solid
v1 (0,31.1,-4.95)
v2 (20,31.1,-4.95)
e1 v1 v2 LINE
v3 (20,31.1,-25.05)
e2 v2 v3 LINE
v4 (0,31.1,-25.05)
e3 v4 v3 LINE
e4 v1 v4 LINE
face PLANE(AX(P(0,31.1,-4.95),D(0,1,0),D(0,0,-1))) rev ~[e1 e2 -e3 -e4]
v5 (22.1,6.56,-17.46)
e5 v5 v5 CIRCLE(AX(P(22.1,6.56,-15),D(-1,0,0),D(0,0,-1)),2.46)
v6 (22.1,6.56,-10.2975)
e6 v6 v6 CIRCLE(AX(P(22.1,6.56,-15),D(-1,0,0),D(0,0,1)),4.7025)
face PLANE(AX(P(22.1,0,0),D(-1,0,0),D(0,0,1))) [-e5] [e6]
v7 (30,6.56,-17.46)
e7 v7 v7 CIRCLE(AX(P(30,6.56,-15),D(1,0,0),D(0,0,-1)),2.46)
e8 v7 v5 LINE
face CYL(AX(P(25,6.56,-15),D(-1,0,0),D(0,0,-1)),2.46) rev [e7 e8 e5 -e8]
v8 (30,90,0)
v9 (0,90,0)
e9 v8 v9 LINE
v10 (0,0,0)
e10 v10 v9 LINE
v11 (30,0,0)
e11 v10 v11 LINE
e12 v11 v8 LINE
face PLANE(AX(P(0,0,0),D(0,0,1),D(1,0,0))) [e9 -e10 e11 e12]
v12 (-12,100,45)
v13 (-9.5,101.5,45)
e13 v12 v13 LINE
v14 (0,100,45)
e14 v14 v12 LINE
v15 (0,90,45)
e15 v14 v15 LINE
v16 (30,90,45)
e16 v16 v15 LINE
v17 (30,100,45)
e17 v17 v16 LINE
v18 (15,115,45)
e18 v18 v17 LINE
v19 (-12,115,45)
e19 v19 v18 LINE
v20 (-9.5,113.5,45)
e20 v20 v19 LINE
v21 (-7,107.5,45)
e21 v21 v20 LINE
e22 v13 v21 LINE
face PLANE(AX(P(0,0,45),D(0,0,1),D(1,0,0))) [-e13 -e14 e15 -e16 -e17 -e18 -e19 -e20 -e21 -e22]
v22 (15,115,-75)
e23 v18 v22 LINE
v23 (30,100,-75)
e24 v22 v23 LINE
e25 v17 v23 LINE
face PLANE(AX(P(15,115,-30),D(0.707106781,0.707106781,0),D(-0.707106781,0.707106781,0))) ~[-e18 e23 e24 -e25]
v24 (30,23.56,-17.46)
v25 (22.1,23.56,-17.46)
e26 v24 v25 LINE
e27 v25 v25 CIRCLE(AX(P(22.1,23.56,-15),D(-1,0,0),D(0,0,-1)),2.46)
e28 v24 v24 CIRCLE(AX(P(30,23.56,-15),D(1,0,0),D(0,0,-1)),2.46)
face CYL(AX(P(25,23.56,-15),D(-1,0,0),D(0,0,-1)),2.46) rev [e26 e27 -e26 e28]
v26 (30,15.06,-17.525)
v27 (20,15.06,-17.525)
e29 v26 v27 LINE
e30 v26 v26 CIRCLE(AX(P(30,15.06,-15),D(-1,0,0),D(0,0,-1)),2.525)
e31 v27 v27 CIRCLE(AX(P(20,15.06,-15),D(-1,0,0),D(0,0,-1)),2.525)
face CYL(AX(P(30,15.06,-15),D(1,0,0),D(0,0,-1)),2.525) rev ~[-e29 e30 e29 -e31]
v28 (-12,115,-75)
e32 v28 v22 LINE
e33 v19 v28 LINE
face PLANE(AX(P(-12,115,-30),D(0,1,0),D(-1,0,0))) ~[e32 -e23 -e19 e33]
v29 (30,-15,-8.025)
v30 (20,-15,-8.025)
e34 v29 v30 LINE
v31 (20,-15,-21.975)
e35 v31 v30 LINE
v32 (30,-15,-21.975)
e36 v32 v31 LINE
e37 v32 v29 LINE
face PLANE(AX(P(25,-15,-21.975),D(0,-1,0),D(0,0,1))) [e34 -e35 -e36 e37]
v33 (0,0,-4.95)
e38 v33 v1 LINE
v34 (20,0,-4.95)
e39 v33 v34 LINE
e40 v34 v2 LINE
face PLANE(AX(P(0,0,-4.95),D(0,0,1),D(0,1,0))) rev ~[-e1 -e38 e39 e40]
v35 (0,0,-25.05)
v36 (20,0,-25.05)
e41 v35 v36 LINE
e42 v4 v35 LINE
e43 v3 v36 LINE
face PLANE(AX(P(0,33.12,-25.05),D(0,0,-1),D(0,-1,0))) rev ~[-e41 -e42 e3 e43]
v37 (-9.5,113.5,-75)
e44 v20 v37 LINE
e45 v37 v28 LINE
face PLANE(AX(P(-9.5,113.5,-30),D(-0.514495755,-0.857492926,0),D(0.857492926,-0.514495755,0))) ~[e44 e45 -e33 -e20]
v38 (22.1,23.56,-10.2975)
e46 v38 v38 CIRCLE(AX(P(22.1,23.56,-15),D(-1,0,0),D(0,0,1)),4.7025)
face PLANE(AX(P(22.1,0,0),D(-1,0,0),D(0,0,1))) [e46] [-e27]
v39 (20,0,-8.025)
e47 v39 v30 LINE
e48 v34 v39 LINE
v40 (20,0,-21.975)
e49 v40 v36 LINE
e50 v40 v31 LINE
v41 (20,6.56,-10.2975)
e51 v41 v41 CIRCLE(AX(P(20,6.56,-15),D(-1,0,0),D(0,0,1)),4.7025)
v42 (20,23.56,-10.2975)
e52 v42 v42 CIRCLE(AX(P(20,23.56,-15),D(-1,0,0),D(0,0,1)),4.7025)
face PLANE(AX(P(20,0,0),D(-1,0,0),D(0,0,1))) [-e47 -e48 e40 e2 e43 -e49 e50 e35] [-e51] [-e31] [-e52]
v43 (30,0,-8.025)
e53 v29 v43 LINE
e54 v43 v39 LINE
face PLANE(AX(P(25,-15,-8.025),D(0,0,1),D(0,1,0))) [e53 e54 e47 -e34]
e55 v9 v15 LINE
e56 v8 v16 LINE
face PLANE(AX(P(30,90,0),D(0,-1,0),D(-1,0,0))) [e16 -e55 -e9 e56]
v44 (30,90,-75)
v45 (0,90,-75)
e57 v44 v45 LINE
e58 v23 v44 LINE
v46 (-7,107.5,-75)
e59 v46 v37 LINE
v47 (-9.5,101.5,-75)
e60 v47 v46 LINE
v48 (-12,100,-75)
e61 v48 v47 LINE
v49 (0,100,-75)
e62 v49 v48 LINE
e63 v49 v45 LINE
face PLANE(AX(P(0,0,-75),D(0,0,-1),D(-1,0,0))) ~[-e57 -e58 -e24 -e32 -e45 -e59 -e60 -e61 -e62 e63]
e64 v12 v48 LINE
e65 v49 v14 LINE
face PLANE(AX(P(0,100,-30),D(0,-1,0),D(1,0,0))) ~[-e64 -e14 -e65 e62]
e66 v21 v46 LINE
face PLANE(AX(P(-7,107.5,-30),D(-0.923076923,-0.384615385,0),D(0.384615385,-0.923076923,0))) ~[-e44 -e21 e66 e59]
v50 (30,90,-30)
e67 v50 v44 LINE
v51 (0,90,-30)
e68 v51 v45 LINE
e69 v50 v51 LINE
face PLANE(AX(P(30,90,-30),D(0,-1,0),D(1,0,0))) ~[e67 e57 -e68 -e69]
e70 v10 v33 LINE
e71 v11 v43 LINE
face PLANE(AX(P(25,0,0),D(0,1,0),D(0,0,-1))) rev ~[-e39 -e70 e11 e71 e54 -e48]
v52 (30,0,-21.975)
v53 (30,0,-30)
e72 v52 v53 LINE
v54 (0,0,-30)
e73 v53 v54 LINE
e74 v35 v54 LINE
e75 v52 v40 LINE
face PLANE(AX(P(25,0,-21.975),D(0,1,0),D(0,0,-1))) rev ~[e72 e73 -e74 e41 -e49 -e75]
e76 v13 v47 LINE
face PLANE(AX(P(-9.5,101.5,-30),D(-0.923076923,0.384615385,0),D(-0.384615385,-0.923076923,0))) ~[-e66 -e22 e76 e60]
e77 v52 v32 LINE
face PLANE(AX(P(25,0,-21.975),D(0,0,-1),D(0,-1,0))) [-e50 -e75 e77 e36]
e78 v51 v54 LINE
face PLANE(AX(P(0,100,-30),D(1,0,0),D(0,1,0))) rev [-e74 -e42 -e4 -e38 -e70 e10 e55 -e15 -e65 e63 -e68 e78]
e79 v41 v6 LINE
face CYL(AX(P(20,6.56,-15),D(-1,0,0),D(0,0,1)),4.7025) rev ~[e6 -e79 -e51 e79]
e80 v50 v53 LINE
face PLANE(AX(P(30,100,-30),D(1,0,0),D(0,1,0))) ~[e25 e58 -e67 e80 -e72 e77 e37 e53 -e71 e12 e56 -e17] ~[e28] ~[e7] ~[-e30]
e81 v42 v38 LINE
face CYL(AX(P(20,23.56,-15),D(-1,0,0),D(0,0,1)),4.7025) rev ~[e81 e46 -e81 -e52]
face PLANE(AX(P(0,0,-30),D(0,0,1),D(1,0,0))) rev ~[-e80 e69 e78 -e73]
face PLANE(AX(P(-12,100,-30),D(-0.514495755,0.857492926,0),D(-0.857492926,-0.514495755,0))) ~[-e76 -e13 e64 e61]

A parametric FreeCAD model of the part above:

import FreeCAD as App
import Part
import Sketcher

V = App.Vector
Q = App.Units.Quantity


def add_polygon(sketch, points):
    """Adds a closed chain of lines whose ends are joined by coincident constraints."""
    first, n = sketch.GeometryCount, len(points)
    for a, b in zip(points, points[1:] + points[:1]):
        sketch.addGeometry(Part.LineSegment(App.Vector(*a, 0), App.Vector(*b, 0)), False)
    for i in range(n):
        sketch.addConstraint(Sketcher.Constraint("Coincident", first + i, 2, first + (i + 1) % n, 1))

doc = App.newDocument("Part")
body = doc.addObject("PartDesign::Body", "Body")

# Sketch on XY plane
sketch1 = body.newObject("Sketcher::SketchObject", "Sketch")
sketch1.AttachmentSupport = (doc.getObject("XY_Plane"), [""])
sketch1.MapMode = "FlatFace"
add_polygon(sketch1, [(0, 40), (0, 0), (25, 0), (25, 40)])  # lines 0-3
sketch1.addConstraint(Sketcher.Constraint("Vertical", 0))
sketch1.addConstraint(Sketcher.Constraint("Horizontal", 1))
sketch1.addConstraint(Sketcher.Constraint("Vertical", 2))
sketch1.addConstraint(Sketcher.Constraint("Horizontal", 3))
sketch1.addConstraint(Sketcher.Constraint("Coincident", 0, 2, -1, 1))
sketch1.addConstraint(Sketcher.Constraint("DistanceX", 1, 1, 1, 2, 25.0))
sketch1.addConstraint(Sketcher.Constraint("DistanceY", 0, 2, 0, 1, 40.0))
pad1 = body.newObject("PartDesign::Pad", "Pad")
pad1.Profile = sketch1
pad1.Length = 30
pad1.Reversed = True

# Sketch on YZ plane
sketch2 = body.newObject("Sketcher::SketchObject", "Sketch001")
sketch2.AttachmentSupport = (doc.getObject("YZ_Plane"), [""])
sketch2.MapMode = "FlatFace"
sketch2.AttachmentOffset = App.Placement(V(0, 0, 25), App.Rotation())
sketch2.addGeometry(Part.Circle(V(6.6, -15, 0), V(0, 0, 1), 2.5), False)
sketch2.addConstraint(Sketcher.Constraint("Diameter", 0, 4.92))
sketch2.addConstraint(Sketcher.Constraint("DistanceY", 0, 3, -1, 1, 15.0))
sketch2.addConstraint(Sketcher.Constraint("DistanceX", -1, 1, 0, 3, 6.56))
pocket1 = body.newObject("PartDesign::Pocket", "Pocket")
pocket1.Profile = sketch2
pocket1.Length = 30

# Sketch on YZ plane
sketch3 = body.newObject("Sketcher::SketchObject", "Sketch002")
sketch3.AttachmentSupport = (doc.getObject("YZ_Plane"), [""])
sketch3.MapMode = "FlatFace"
add_polygon(sketch3, [(0, -25), (0, -5), (33, -5), (33, -25)])  # lines 0-3
sketch3.addConstraint(Sketcher.Constraint("Vertical", 0))
sketch3.addConstraint(Sketcher.Constraint("Horizontal", 1))
sketch3.addConstraint(Sketcher.Constraint("Vertical", 2))
sketch3.addConstraint(Sketcher.Constraint("Horizontal", 3))
sketch3.addConstraint(Sketcher.Constraint("PointOnObject", 0, 2, -2))
sketch3.addConstraint(Sketcher.Constraint("DistanceY", 0, 1, 0, 2, 20.1))
sketch3.addConstraint(Sketcher.Constraint("DistanceX", 1, 1, 1, 2, 33.12))
sketch3.addConstraint(Sketcher.Constraint("DistanceY", 0, 2, -1, 1, 4.95))
pocket2 = body.newObject("PartDesign::Pocket", "Pocket001")
pocket2.Profile = sketch3
pocket2.Length = 20
pocket2.Reversed = True

# Sketch on XZ plane
sketch4 = body.newObject("Sketcher::SketchObject", "Sketch003")
sketch4.AttachmentSupport = (doc.getObject("XZ_Plane"), [""])
sketch4.MapMode = "FlatFace"
add_polygon(sketch4, [(25, -8), (20, -8), (20, -22), (25, -22)])  # lines 0-3
sketch4.addConstraint(Sketcher.Constraint("Horizontal", 0))
sketch4.addConstraint(Sketcher.Constraint("Vertical", 1))
sketch4.addConstraint(Sketcher.Constraint("Horizontal", 2))
sketch4.addConstraint(Sketcher.Constraint("Vertical", 3))
sketch4.addConstraint(Sketcher.Constraint("DistanceY", 1, 2, 1, 1, 13.95))
sketch4.addConstraint(Sketcher.Constraint("DistanceX", 0, 2, 0, 1, 5.0))
sketch4.addConstraint(Sketcher.Constraint("DistanceX", -1, 1, 0, 2, 20.0))
sketch4.addConstraint(Sketcher.Constraint("DistanceY", 0, 2, -1, 1, 8.025))
pad2 = body.newObject("PartDesign::Pad", "Pad001")
pad2.Profile = sketch4
pad2.Length = 15

# Sketch on YZ plane
sketch5 = body.newObject("Sketcher::SketchObject", "Sketch004")
sketch5.AttachmentSupport = (doc.getObject("YZ_Plane"), [""])
sketch5.MapMode = "FlatFace"
sketch5.AttachmentOffset = App.Placement(V(0, 0, 20), App.Rotation())
sketch5.addGeometry(Part.Circle(V(6.6, -15, 0), V(0, 0, 1), 4.7), False)
sketch5.addGeometry(Part.Circle(V(6.6, -15, 0), V(0, 0, 1), 2.5), False)
sketch5.addConstraint(Sketcher.Constraint("Coincident", 1, 3, 0, 3))
sketch5.addConstraint(Sketcher.Constraint("Diameter", 0, 9.405))
sketch5.addConstraint(Sketcher.Constraint("Diameter", 1, 4.92))
sketch5.addConstraint(Sketcher.Constraint("DistanceY", 0, 3, -1, 1, 15.0))
sketch5.addConstraint(Sketcher.Constraint("DistanceX", -1, 1, 0, 3, 6.56))
pocket3 = body.newObject("PartDesign::Pocket", "Pocket002")
pocket3.Profile = sketch5
pocket3.Length = 2.1
pocket3.Reversed = True

# Sketch on YZ plane
sketch6 = body.newObject("Sketcher::SketchObject", "Sketch005")
sketch6.AttachmentSupport = (doc.getObject("YZ_Plane"), [""])
sketch6.MapMode = "FlatFace"
sketch6.AttachmentOffset = App.Placement(V(0, 0, 25), App.Rotation())
sketch6.addGeometry(Part.Circle(V(23.6, -15, 0), V(0, 0, 1), 2.5), False)
sketch6.addConstraint(Sketcher.Constraint("Diameter", 0, 4.92))
sketch6.addConstraint(Sketcher.Constraint("DistanceY", 0, 3, -1, 1, 15.0))
sketch6.addConstraint(Sketcher.Constraint("DistanceX", -1, 1, 0, 3, 23.56))
pocket4 = body.newObject("PartDesign::Pocket", "Pocket003")
pocket4.Profile = sketch6
pocket4.Length = 10

# Sketch on YZ plane
sketch7 = body.newObject("Sketcher::SketchObject", "Sketch006")
sketch7.AttachmentSupport = (doc.getObject("YZ_Plane"), [""])
sketch7.MapMode = "FlatFace"
sketch7.AttachmentOffset = App.Placement(V(0, 0, 20), App.Rotation())
sketch7.addGeometry(Part.Circle(V(23.6, -15, 0), V(0, 0, 1), 4.7), False)
sketch7.addGeometry(Part.Circle(V(23.6, -15, 0), V(0, 0, 1), 2.5), False)
sketch7.addConstraint(Sketcher.Constraint("Coincident", 1, 3, 0, 3))
sketch7.addConstraint(Sketcher.Constraint("Diameter", 0, 9.405))
sketch7.addConstraint(Sketcher.Constraint("Diameter", 1, 4.92))
sketch7.addConstraint(Sketcher.Constraint("DistanceY", 0, 3, -1, 1, 15.0))
sketch7.addConstraint(Sketcher.Constraint("DistanceX", -1, 1, 0, 3, 23.56))
pocket5 = body.newObject("PartDesign::Pocket", "Pocket004")
pocket5.Profile = sketch7
pocket5.Length = 2.1
pocket5.Reversed = True

# Sketch on YZ plane
sketch8 = body.newObject("Sketcher::SketchObject", "Sketch007")
sketch8.AttachmentSupport = (doc.getObject("YZ_Plane"), [""])
sketch8.MapMode = "FlatFace"
sketch8.AttachmentOffset = App.Placement(V(0, 0, 25), App.Rotation())
add_polygon(sketch8, [(0, -30), (40, -30), (40, 0), (0, 0), (0, -8), (-15, -8), (-15, -22), (0, -22)])  # lines 0-7
sketch8.addGeometry(Part.Circle(V(6.6, -15, 0), V(0, 0, 1), 2.5), False)  # 8
sketch8.addGeometry(Part.Circle(V(23.6, -15, 0), V(0, 0, 1), 2.5), False)  # 9
sketch8.addConstraint(Sketcher.Constraint("Horizontal", 0))
sketch8.addConstraint(Sketcher.Constraint("Vertical", 1))
sketch8.addConstraint(Sketcher.Constraint("Horizontal", 2))
sketch8.addConstraint(Sketcher.Constraint("Vertical", 3))
sketch8.addConstraint(Sketcher.Constraint("Horizontal", 4))
sketch8.addConstraint(Sketcher.Constraint("Vertical", 5))
sketch8.addConstraint(Sketcher.Constraint("Horizontal", 6))
sketch8.addConstraint(Sketcher.Constraint("Vertical", 7))
sketch8.addConstraint(Sketcher.Constraint("Coincident", 2, 2, -1, 1))
sketch8.addConstraint(Sketcher.Constraint("Equal", 8, 9))
sketch8.addConstraint(Sketcher.Constraint("PointOnObject", 6, 2, -2))
sketch8.addConstraint(Sketcher.Constraint("Horizontal", 8, 3, 9, 3))
sketch8.addConstraint(Sketcher.Constraint("Equal", 3, 7))
sketch8.addConstraint(Sketcher.Constraint("Diameter", 8, 4.92))
sketch8.addConstraint(Sketcher.Constraint("DistanceX", 0, 1, 0, 2, 40.0))
sketch8.addConstraint(Sketcher.Constraint("DistanceX", 4, 2, 4, 1, 15.0))
sketch8.addConstraint(Sketcher.Constraint("DistanceY", 1, 1, 1, 2, 30.0))
sketch8.addConstraint(Sketcher.Constraint("DistanceY", 8, 3, -1, 1, 15.0))
sketch8.addConstraint(Sketcher.Constraint("DistanceX", 8, 3, 9, 3, 17.0))
sketch8.addConstraint(Sketcher.Constraint("DistanceY", 5, 2, 5, 1, 13.95))
sketch8.addConstraint(Sketcher.Constraint("DistanceX", -1, 1, 8, 3, 6.56))
pad3 = body.newObject("PartDesign::Pad", "Pad002")
pad3.Profile = sketch8
pad3.Length = 5

# Sketch on XZ plane
sketch9 = body.newObject("Sketcher::SketchObject", "Sketch008")
sketch9.AttachmentSupport = (doc.getObject("XZ_Plane"), [""])
sketch9.MapMode = "FlatFace"
sketch9.AttachmentOffset = App.Placement(V(0, 0, -40), App.Rotation())
add_polygon(sketch9, [(30, -30), (0, -30), (0, 0), (30, 0)])  # lines 0-3
sketch9.addConstraint(Sketcher.Constraint("Horizontal", 0))
sketch9.addConstraint(Sketcher.Constraint("Vertical", 1))
sketch9.addConstraint(Sketcher.Constraint("Horizontal", 2))
sketch9.addConstraint(Sketcher.Constraint("Vertical", 3))
sketch9.addConstraint(Sketcher.Constraint("Coincident", 1, 2, -1, 1))
sketch9.addConstraint(Sketcher.Constraint("Equal", 2, 1))
sketch9.addConstraint(Sketcher.Constraint("DistanceX", 0, 2, 0, 1, 30.0))
pad4 = body.newObject("PartDesign::Pad", "Pad003")
pad4.Profile = sketch9
pad4.Length = 30
pad4.Reversed = True

# Sketch on YZ plane
sketch10 = body.newObject("Sketcher::SketchObject", "Sketch009")
sketch10.AttachmentSupport = (doc.getObject("YZ_Plane"), [""])
sketch10.MapMode = "FlatFace"
sketch10.AttachmentOffset = App.Placement(V(0, 0, 30), App.Rotation())
sketch10.addGeometry(Part.Circle(V(15.1, -15, 0), V(0, 0, 1), 2.5), False)
sketch10.addConstraint(Sketcher.Constraint("Diameter", 0, 5.05))
sketch10.addConstraint(Sketcher.Constraint("DistanceY", 0, 3, -1, 1, 15.0))
sketch10.addConstraint(Sketcher.Constraint("DistanceX", -1, 1, 0, 3, 15.06))
pocket6 = body.newObject("PartDesign::Pocket", "Pocket005")
pocket6.Profile = sketch10
pocket6.Length = 30

# Sketch on XY plane
sketch11 = body.newObject("Sketcher::SketchObject", "Sketch010")
sketch11.AttachmentSupport = (doc.getObject("XY_Plane"), [""])
sketch11.MapMode = "FlatFace"
add_polygon(sketch11, [(0, 70), (30, 70), (30, 100), (15, 115), (-12, 115), (-9.5, 113.5), (-7, 107.5), (-9.5, 101.5), (-12, 100), (0, 100)])  # lines 0-9
sketch11.addConstraint(Sketcher.Constraint("Horizontal", 0))
sketch11.addConstraint(Sketcher.Constraint("Vertical", 1))
sketch11.addConstraint(Sketcher.Constraint("Horizontal", 3))
sketch11.addConstraint(Sketcher.Constraint("Horizontal", 8))
sketch11.addConstraint(Sketcher.Constraint("Vertical", 9))
sketch11.addConstraint(Sketcher.Constraint("PointOnObject", 8, 2, -2))
sketch11.addConstraint(Sketcher.Constraint("Horizontal", 1, 2, 7, 2))
sketch11.addConstraint(Sketcher.Constraint("Vertical", 4, 2, 6, 2))
sketch11.addConstraint(Sketcher.Constraint("Vertical", 3, 2, 7, 2))
sketch11.addConstraint(Sketcher.Constraint("Equal", 0, 1))
sketch11.addConstraint(Sketcher.Constraint("Equal", 5, 6))
sketch11.addConstraint(Sketcher.Constraint("Equal", 4, 7))
sketch11.addConstraint(Sketcher.Constraint("DistanceX", 8, 1, 8, 2, 12.0))
sketch11.addConstraint(Sketcher.Constraint("DistanceX", -1, 1, 2, 2, 15.0))
sketch11.addConstraint(Sketcher.Constraint("DistanceX", 2, 2, 1, 2, 15.0))
sketch11.addConstraint(Sketcher.Constraint("DistanceY", 1, 2, 2, 2, 15.0))
sketch11.addConstraint(Sketcher.Constraint("DistanceY", 6, 2, 4, 2, 12.0))
sketch11.addConstraint(Sketcher.Constraint("DistanceY", -1, 1, 0, 2, 70.0))
sketch11.addConstraint(Sketcher.Constraint("DistanceX", 5, 2, -1, 1, 7.0))
sketch11.addConstraint(Sketcher.Constraint("Distance", 5, 6.5))
pad5 = body.newObject("PartDesign::Pad", "Pad004")
pad5.Profile = sketch11
pad5.Length = 30
pad5.Reversed = True

# Sketch on YZ plane
sketch12 = body.newObject("Sketcher::SketchObject", "Sketch011")
sketch12.AttachmentSupport = (doc.getObject("YZ_Plane"), [""])
sketch12.MapMode = "FlatFace"
add_polygon(sketch12, [(33.1, -5), (33.1, -25.1), (31.1, -25.1), (31.1, -5)])  # lines 0-3
sketch12.addConstraint(Sketcher.Constraint("Vertical", 0))
sketch12.addConstraint(Sketcher.Constraint("Horizontal", 1))
sketch12.addConstraint(Sketcher.Constraint("Vertical", 2))
sketch12.addConstraint(Sketcher.Constraint("Horizontal", 3))
sketch12.addConstraint(Sketcher.Constraint("DistanceX", 1, 2, 1, 1, 2.02))
sketch12.addConstraint(Sketcher.Constraint("DistanceY", 0, 2, 0, 1, 20.1))
sketch12.addConstraint(Sketcher.Constraint("DistanceX", -1, 1, 1, 2, 31.1))
sketch12.addConstraint(Sketcher.Constraint("DistanceY", 0, 2, -1, 1, 25.05))
pad6 = body.newObject("PartDesign::Pad", "Pad005")
pad6.Profile = sketch12
pad6.Length = 20

# Sketch on XY plane
sketch13 = body.newObject("Sketcher::SketchObject", "Sketch012")
sketch13.AttachmentSupport = (doc.getObject("XY_Plane"), [""])
sketch13.MapMode = "FlatFace"
add_polygon(sketch13, [(-12, 100), (0, 100), (0, 90), (30, 90), (30, 100), (15, 115), (-12, 115), (-9.5, 113.5), (-7, 107.5), (-9.5, 101.5)])  # lines 0-9
sketch13.addConstraint(Sketcher.Constraint("Horizontal", 0))
sketch13.addConstraint(Sketcher.Constraint("Vertical", 1))
sketch13.addConstraint(Sketcher.Constraint("Horizontal", 2))
sketch13.addConstraint(Sketcher.Constraint("Vertical", 3))
sketch13.addConstraint(Sketcher.Constraint("Horizontal", 5))
sketch13.addConstraint(Sketcher.Constraint("PointOnObject", 0, 2, -2))
sketch13.addConstraint(Sketcher.Constraint("Horizontal", 0, 2, 3, 2))
sketch13.addConstraint(Sketcher.Constraint("Vertical", 6, 2, 8, 2))
sketch13.addConstraint(Sketcher.Constraint("Vertical", 5, 2, 9, 2))
sketch13.addConstraint(Sketcher.Constraint("Equal", 7, 8))
sketch13.addConstraint(Sketcher.Constraint("Equal", 6, 9))
sketch13.addConstraint(Sketcher.Constraint("DistanceX", 2, 1, 2, 2, 30.0))
sketch13.addConstraint(Sketcher.Constraint("DistanceY", 1, 2, 1, 1, 10.0))
sketch13.addConstraint(Sketcher.Constraint("DistanceX", 0, 1, 0, 2, 12.0))
sketch13.addConstraint(Sketcher.Constraint("DistanceX", 5, 2, 5, 1, 27.0))
sketch13.addConstraint(Sketcher.Constraint("Angle", 4, Q("135 deg")))
sketch13.addConstraint(Sketcher.Constraint("DistanceY", -1, 1, 0, 2, 100.0))
sketch13.addConstraint(Sketcher.Constraint("DistanceX", 7, 2, -1, 1, 7.0))
sketch13.addConstraint(Sketcher.Constraint("DistanceY", 7, 2, 6, 2, 6.0))
sketch13.addConstraint(Sketcher.Constraint("Distance", 7, 6.5))
pad7 = body.newObject("PartDesign::Pad", "Pad006")
pad7.Profile = sketch13
pad7.Length = 45
doc.recompute()

datumplane = body.newObject("PartDesign::Plane", "DatumPlane")
datumplane.AttachmentSupport = (doc.getObject("XY_Plane"), [""])
datumplane.MapMode = "FlatFace"
datumplane.AttachmentOffset = App.Placement(V(0, 0, -15), App.Rotation())
mirrored = body.newObject("PartDesign::Mirrored", "Mirrored")
mirrored.Originals = [pad7]
mirrored.MirrorPlane = (datumplane, [""])
body.Tip = mirrored

doc.recompute()
